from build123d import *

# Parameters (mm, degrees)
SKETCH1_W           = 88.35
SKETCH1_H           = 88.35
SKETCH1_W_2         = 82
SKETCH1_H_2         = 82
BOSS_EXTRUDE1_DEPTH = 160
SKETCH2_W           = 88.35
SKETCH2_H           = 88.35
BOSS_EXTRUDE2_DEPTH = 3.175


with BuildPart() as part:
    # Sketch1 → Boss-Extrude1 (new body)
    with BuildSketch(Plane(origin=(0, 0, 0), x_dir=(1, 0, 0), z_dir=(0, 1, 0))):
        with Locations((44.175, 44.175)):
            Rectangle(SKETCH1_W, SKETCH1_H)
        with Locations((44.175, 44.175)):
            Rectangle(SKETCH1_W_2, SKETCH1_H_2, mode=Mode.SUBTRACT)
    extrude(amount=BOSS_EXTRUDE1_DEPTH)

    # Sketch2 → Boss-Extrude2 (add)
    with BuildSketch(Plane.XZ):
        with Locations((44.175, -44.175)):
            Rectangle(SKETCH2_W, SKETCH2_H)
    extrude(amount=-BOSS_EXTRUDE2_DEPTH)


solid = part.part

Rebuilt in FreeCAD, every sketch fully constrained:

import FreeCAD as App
import Part
import Sketcher

V = App.Vector


def add_polygon(sketch, points):
    """Adds a closed chain of lines whose ends are joined by coincident constraints."""
    first, n = sketch.GeometryCount, len(points)
    for a, b in zip(points, points[1:] + points[:1]):
        sketch.addGeometry(Part.LineSegment(App.Vector(*a, 0), App.Vector(*b, 0)), False)
    for i in range(n):
        sketch.addConstraint(Sketcher.Constraint("Coincident", first + i, 2, first + (i + 1) % n, 1))

doc = App.newDocument("Part")
body = doc.addObject("PartDesign::Body", "Body")

sketch1 = doc.addObject("Sketcher::SketchObject", "Sketch")
body.addObject(sketch1)
sketch1.AttachmentSupport = (doc.XZ_Plane, [""])
sketch1.MapMode = "FlatFace"
add_polygon(sketch1, [(0, -88), (0, 0), (88, 0), (88, -88)])
add_polygon(sketch1, [(85, -3), (3, -3), (3, -85), (85, -85)])
sketch1.addConstraint([
    Sketcher.Constraint("Vertical", 0),
    Sketcher.Constraint("Horizontal", 1),
    Sketcher.Constraint("Vertical", 2),
    Sketcher.Constraint("Horizontal", 3),
    Sketcher.Constraint("Horizontal", 4),
    Sketcher.Constraint("Vertical", 5),
    Sketcher.Constraint("Horizontal", 6),
    Sketcher.Constraint("Vertical", 7),
    Sketcher.Constraint("Coincident", 0, 2, -1, 1),
    Sketcher.Constraint("Equal", 3, 0),
    Sketcher.Constraint("Equal", 6, 5),
    Sketcher.Constraint("DistanceX", 4, 2, 4, 1, 82.0),
    Sketcher.Constraint("DistanceX", 1, 1, 1, 2, 88.35),
    Sketcher.Constraint("DistanceX", -1, 1, 4, 2, 3.175),
    Sketcher.Constraint("DistanceY", 4, 2, -1, 1, 3.175),
])
pad1 = doc.addObject("PartDesign::Pad", "Pad")
body.addObject(pad1)
pad1.Profile = sketch1
pad1.Length = 160
pad1.Reversed = True

sketch2 = doc.addObject("Sketcher::SketchObject", "Sketch001")
body.addObject(sketch2)
sketch2.AttachmentSupport = (doc.XZ_Plane, [""])
sketch2.MapMode = "FlatFace"
add_polygon(sketch2, [(0, 0), (0, -88), (88, -88), (88, 0)])
sketch2.addConstraint([
    Sketcher.Constraint("Vertical", 0),
    Sketcher.Constraint("Horizontal", 1),
    Sketcher.Constraint("Vertical", 2),
    Sketcher.Constraint("Horizontal", 3),
    Sketcher.Constraint("Coincident", 3, 2, -1, 1),
    Sketcher.Constraint("Equal", 3, 0),
    Sketcher.Constraint("DistanceX", 1, 1, 1, 2, 88.35),
])
pad2 = doc.addObject("PartDesign::Pad", "Pad001")
body.addObject(pad2)
pad2.Profile = sketch2
pad2.Length = 3.175
pad2.Reversed = True

doc.recompute()
